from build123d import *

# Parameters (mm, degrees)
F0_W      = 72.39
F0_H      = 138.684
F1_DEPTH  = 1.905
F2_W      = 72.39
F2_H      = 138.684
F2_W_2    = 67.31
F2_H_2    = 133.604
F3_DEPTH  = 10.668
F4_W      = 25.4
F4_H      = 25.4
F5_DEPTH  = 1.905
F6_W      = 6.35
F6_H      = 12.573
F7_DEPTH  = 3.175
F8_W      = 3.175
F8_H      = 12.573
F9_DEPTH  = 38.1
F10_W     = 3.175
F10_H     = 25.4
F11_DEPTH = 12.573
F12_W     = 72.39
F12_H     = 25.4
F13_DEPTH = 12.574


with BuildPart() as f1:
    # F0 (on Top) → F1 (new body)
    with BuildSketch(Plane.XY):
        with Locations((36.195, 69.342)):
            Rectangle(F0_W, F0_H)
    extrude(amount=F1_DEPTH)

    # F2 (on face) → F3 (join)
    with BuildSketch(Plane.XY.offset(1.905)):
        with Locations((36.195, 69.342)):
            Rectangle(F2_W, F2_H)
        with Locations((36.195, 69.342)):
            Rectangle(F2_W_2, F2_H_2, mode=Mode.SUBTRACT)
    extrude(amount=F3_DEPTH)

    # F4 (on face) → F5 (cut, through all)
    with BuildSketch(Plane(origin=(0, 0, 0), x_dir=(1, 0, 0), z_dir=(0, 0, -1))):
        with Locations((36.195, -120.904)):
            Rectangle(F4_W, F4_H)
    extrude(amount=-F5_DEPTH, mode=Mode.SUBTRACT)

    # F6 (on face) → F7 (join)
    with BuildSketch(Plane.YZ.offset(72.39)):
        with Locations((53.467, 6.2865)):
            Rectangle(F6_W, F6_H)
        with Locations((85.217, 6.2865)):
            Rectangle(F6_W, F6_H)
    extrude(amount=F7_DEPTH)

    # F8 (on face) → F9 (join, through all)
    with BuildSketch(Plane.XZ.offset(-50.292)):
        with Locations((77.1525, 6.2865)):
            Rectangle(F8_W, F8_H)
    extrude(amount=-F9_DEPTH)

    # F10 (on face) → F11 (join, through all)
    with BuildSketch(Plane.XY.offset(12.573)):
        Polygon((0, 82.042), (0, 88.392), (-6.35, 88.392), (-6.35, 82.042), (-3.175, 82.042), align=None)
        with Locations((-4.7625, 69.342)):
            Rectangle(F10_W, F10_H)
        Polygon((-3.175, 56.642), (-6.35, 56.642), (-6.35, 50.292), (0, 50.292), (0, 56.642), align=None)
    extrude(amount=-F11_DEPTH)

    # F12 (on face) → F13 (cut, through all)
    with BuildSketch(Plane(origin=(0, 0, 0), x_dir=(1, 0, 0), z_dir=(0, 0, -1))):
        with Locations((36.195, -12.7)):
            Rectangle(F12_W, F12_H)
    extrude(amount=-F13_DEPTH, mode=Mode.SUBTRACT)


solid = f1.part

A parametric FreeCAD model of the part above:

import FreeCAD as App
import Part
import Sketcher
Q = App.Units.Quantity

doc = App.newDocument("Part")
params = doc.addObject("Spreadsheet::Sheet", "Params")
for row, (alias, value) in enumerate([
    ("sketch1_width", "2.85 in"),
    ("sketch1_height", "5.46 in"),
    ("pad1_length", "0.075 in"),
    ("sketch2_width", "2.85 in"),
    ("sketch2_width2", "2.65 in"),
    ("sketch2_height", "5.46 in"),
    ("sketch2_height2", "5.26 in"),
    ("pad2_length", "0.42 in"),
    ("sketch3_width", "1 in"),
    ("sketch4_width", "0.25 in"),
    ("sketch4_height", "0.495 in"),
    ("pad3_length", "0.125 in"),
    ("sketch5_width", "0.125 in"),
    ("sketch5_height", "0.495 in"),
    ("pad4_length", "1.5 in"),
    ("sketch6_height", "1 in"),
    ("sketch6_height2", "1.5 in"),
    ("sketch6_width", "0.125 in"),
    ("pad5_length", "0.495 in"),
    ("sketch7_height", "1 in"),
    ("sketch7_width", "2.85 in"),
], start=1):
    params.set(f"A{row}", alias)
    params.set(f"B{row}", "=" + value)
    params.setAlias(f"B{row}", alias)

body = doc.addObject("PartDesign::Body", "Body")

# Sketch on XY plane
sketch1 = doc.addObject("Sketcher::SketchObject", "Sketch")
body.addObject(sketch1)
sketch1.AttachmentSupport = (doc.XY_Plane, [""])
sketch1.MapMode = "FlatFace"
sketch1.addGeometry(Part.LineSegment(App.Vector(0, 139, 0), App.Vector(0, 0, 0)), False)
sketch1.addGeometry(Part.LineSegment(App.Vector(0, 0, 0), App.Vector(72, 0, 0)), False)
sketch1.addGeometry(Part.LineSegment(App.Vector(72, 0, 0), App.Vector(72, 139, 0)), False)
sketch1.addGeometry(Part.LineSegment(App.Vector(72, 139, 0), App.Vector(0, 139, 0)), False)
sketch1.addConstraint(Sketcher.Constraint("Coincident", 0, 2, 1, 1))
sketch1.addConstraint(Sketcher.Constraint("Coincident", 1, 2, 2, 1))
sketch1.addConstraint(Sketcher.Constraint("Coincident", 2, 2, 3, 1))
sketch1.addConstraint(Sketcher.Constraint("Coincident", 3, 2, 0, 1))
sketch1.addConstraint(Sketcher.Constraint("Vertical", 0))
sketch1.addConstraint(Sketcher.Constraint("Horizontal", 1))
sketch1.addConstraint(Sketcher.Constraint("Vertical", 2))
sketch1.addConstraint(Sketcher.Constraint("Horizontal", 3))
sketch1.addConstraint(Sketcher.Constraint("Coincident", 0, 2, -1, 1))
sketch1.addConstraint(Sketcher.Constraint("DistanceX", 1, 1, 1, 2, Q("2.85 in")))
sketch1.addConstraint(Sketcher.Constraint("DistanceY", 0, 2, 0, 1, Q("5.46 in")))
sketch1.setExpression("Constraints[9]", "Params.sketch1_width")
sketch1.setExpression("Constraints[10]", "Params.sketch1_height")
pad1 = doc.addObject("PartDesign::Pad", "Pad")
body.addObject(pad1)
pad1.Profile = sketch1
pad1.setExpression("Length", "Params.pad1_length")

# Sketch on XY plane
sketch2 = doc.addObject("Sketcher::SketchObject", "Sketch001")
body.addObject(sketch2)
sketch2.AttachmentSupport = (doc.XY_Plane, [""])
sketch2.MapMode = "FlatFace"
sketch2.AttachmentOffset = App.Placement(App.Vector(0, 0, 0.075 * 25.4), App.Rotation())
sketch2.addGeometry(Part.LineSegment(App.Vector(0, 139, 0), App.Vector(0, 0, 0)), False)
sketch2.addGeometry(Part.LineSegment(App.Vector(0, 0, 0), App.Vector(72, 0, 0)), False)
sketch2.addGeometry(Part.LineSegment(App.Vector(72, 0, 0), App.Vector(72, 139, 0)), False)
sketch2.addGeometry(Part.LineSegment(App.Vector(72, 139, 0), App.Vector(0, 139, 0)), False)
sketch2.addGeometry(Part.LineSegment(App.Vector(70, 3, 0), App.Vector(3, 3, 0)), False)
sketch2.addGeometry(Part.LineSegment(App.Vector(3, 3, 0), App.Vector(3, 136, 0)), False)
sketch2.addGeometry(Part.LineSegment(App.Vector(3, 136, 0), App.Vector(70, 136, 0)), False)
sketch2.addGeometry(Part.LineSegment(App.Vector(70, 136, 0), App.Vector(70, 3, 0)), False)
sketch2.addConstraint(Sketcher.Constraint("Coincident", 0, 2, 1, 1))
sketch2.addConstraint(Sketcher.Constraint("Coincident", 1, 2, 2, 1))
sketch2.addConstraint(Sketcher.Constraint("Coincident", 2, 2, 3, 1))
sketch2.addConstraint(Sketcher.Constraint("Coincident", 3, 2, 0, 1))
sketch2.addConstraint(Sketcher.Constraint("Coincident", 4, 2, 5, 1))
sketch2.addConstraint(Sketcher.Constraint("Coincident", 5, 2, 6, 1))
sketch2.addConstraint(Sketcher.Constraint("Coincident", 6, 2, 7, 1))
sketch2.addConstraint(Sketcher.Constraint("Coincident", 7, 2, 4, 1))
sketch2.addConstraint(Sketcher.Constraint("Vertical", 0))
sketch2.addConstraint(Sketcher.Constraint("Horizontal", 1))
sketch2.addConstraint(Sketcher.Constraint("Vertical", 2))
sketch2.addConstraint(Sketcher.Constraint("Horizontal", 3))
sketch2.addConstraint(Sketcher.Constraint("Horizontal", 4))
sketch2.addConstraint(Sketcher.Constraint("Vertical", 5))
sketch2.addConstraint(Sketcher.Constraint("Horizontal", 6))
sketch2.addConstraint(Sketcher.Constraint("Vertical", 7))
sketch2.addConstraint(Sketcher.Constraint("Coincident", 0, 2, -1, 1))
sketch2.addConstraint(Sketcher.Constraint("DistanceX", 1, 1, 1, 2, Q("2.85 in")))
sketch2.addConstraint(Sketcher.Constraint("DistanceX", 4, 2, 4, 1, Q("2.65 in")))
sketch2.addConstraint(Sketcher.Constraint("DistanceY", 0, 2, 0, 1, Q("5.46 in")))
sketch2.addConstraint(Sketcher.Constraint("DistanceY", 5, 1, 5, 2, Q("5.26 in")))
sketch2.addConstraint(Sketcher.Constraint("DistanceX", -1, 1, 4, 2, Q("0.1 in")))
sketch2.addConstraint(Sketcher.Constraint("DistanceY", -1, 1, 4, 2, Q("0.1 in")))
sketch2.setExpression("Constraints[17]", "Params.sketch2_width")
sketch2.setExpression("Constraints[18]", "Params.sketch2_width2")
sketch2.setExpression("Constraints[19]", "Params.sketch2_height")
sketch2.setExpression("Constraints[20]", "Params.sketch2_height2")
pad2 = doc.addObject("PartDesign::Pad", "Pad001")
body.addObject(pad2)
pad2.Profile = sketch2
pad2.setExpression("Length", "Params.pad2_length")

# Sketch on XY plane
sketch3 = doc.addObject("Sketcher::SketchObject", "Sketch002")
body.addObject(sketch3)
sketch3.AttachmentSupport = (doc.XY_Plane, [""])
sketch3.MapMode = "FlatFace"
sketch3.addGeometry(Part.LineSegment(App.Vector(23, 108, 0), App.Vector(23, 134, 0)), False)
sketch3.addGeometry(Part.LineSegment(App.Vector(23, 134, 0), App.Vector(49, 134, 0)), False)
sketch3.addGeometry(Part.LineSegment(App.Vector(49, 134, 0), App.Vector(49, 108, 0)), False)
sketch3.addGeometry(Part.LineSegment(App.Vector(49, 108, 0), App.Vector(23, 108, 0)), False)
sketch3.addConstraint(Sketcher.Constraint("Coincident", 0, 2, 1, 1))
sketch3.addConstraint(Sketcher.Constraint("Coincident", 1, 2, 2, 1))
sketch3.addConstraint(Sketcher.Constraint("Coincident", 2, 2, 3, 1))
sketch3.addConstraint(Sketcher.Constraint("Coincident", 3, 2, 0, 1))
sketch3.addConstraint(Sketcher.Constraint("Vertical", 0))
sketch3.addConstraint(Sketcher.Constraint("Horizontal", 1))
sketch3.addConstraint(Sketcher.Constraint("Vertical", 2))
sketch3.addConstraint(Sketcher.Constraint("Horizontal", 3))
sketch3.addConstraint(Sketcher.Constraint("Equal", 3, 0))
sketch3.addConstraint(Sketcher.Constraint("DistanceX", 1, 1, 1, 2, Q("1 in")))
sketch3.addConstraint(Sketcher.Constraint("DistanceY", -1, 1, 0, 2, Q("5.26 in")))
sketch3.addConstraint(Sketcher.Constraint("DistanceX", -1, 1, 0, 2, Q("0.925 in")))
sketch3.setExpression("Constraints[9]", "Params.sketch3_width")
pocket1 = doc.addObject("PartDesign::Pocket", "Pocket")
body.addObject(pocket1)
pocket1.Profile = sketch3
pocket1.Type = "ThroughAll"
pocket1.Reversed = True

# Sketch on YZ plane
sketch4 = doc.addObject("Sketcher::SketchObject", "Sketch003")
body.addObject(sketch4)
sketch4.AttachmentSupport = (doc.YZ_Plane, [""])
sketch4.MapMode = "FlatFace"
sketch4.AttachmentOffset = App.Placement(App.Vector(0, 0, 2.85 * 25.4), App.Rotation())
sketch4.addGeometry(Part.LineSegment(App.Vector(50, 13, 0), App.Vector(50, 0, 0)), False)
sketch4.addGeometry(Part.LineSegment(App.Vector(50, 0, 0), App.Vector(57, 0, 0)), False)
sketch4.addGeometry(Part.LineSegment(App.Vector(57, 0, 0), App.Vector(57, 13, 0)), False)
sketch4.addGeometry(Part.LineSegment(App.Vector(57, 13, 0), App.Vector(50, 13, 0)), False)
sketch4.addGeometry(Part.LineSegment(App.Vector(82, 13, 0), App.Vector(82, 0, 0)), False)
sketch4.addGeometry(Part.LineSegment(App.Vector(82, 0, 0), App.Vector(88, 0, 0)), False)
sketch4.addGeometry(Part.LineSegment(App.Vector(88, 0, 0), App.Vector(88, 13, 0)), False)
sketch4.addGeometry(Part.LineSegment(App.Vector(88, 13, 0), App.Vector(82, 13, 0)), False)
sketch4.addConstraint(Sketcher.Constraint("Coincident", 0, 2, 1, 1))
sketch4.addConstraint(Sketcher.Constraint("Coincident", 1, 2, 2, 1))
sketch4.addConstraint(Sketcher.Constraint("Coincident", 2, 2, 3, 1))
sketch4.addConstraint(Sketcher.Constraint("Coincident", 3, 2, 0, 1))
sketch4.addConstraint(Sketcher.Constraint("Coincident", 4, 2, 5, 1))
sketch4.addConstraint(Sketcher.Constraint("Coincident", 5, 2, 6, 1))
sketch4.addConstraint(Sketcher.Constraint("Coincident", 6, 2, 7, 1))
sketch4.addConstraint(Sketcher.Constraint("Coincident", 7, 2, 4, 1))
sketch4.addConstraint(Sketcher.Constraint("Vertical", 0))
sketch4.addConstraint(Sketcher.Constraint("Horizontal", 1))
sketch4.addConstraint(Sketcher.Constraint("Vertical", 2))
sketch4.addConstraint(Sketcher.Constraint("Horizontal", 3))
sketch4.addConstraint(Sketcher.Constraint("Vertical", 4))
sketch4.addConstraint(Sketcher.Constraint("Horizontal", 5))
sketch4.addConstraint(Sketcher.Constraint("Vertical", 6))
sketch4.addConstraint(Sketcher.Constraint("Horizontal", 7))
sketch4.addConstraint(Sketcher.Constraint("PointOnObject", 0, 2, -1))
sketch4.addConstraint(Sketcher.Constraint("PointOnObject", 4, 2, -1))
sketch4.addConstraint(Sketcher.Constraint("Horizontal", 3, 2, 6, 2))
sketch4.addConstraint(Sketcher.Constraint("Equal", 3, 5))
sketch4.addConstraint(Sketcher.Constraint("DistanceX", 1, 2, 4, 2, Q("1 in")))
sketch4.addConstraint(Sketcher.Constraint("DistanceX", 1, 1, 1, 2, Q("0.25 in")))
sketch4.addConstraint(Sketcher.Constraint("DistanceY", 0, 2, 0, 1, Q("0.495 in")))
sketch4.addConstraint(Sketcher.Constraint("DistanceX", -1, 1, 0, 2, Q("1.98 in")))
sketch4.setExpression("Constraints[21]", "Params.sketch4_width")
sketch4.setExpression("Constraints[22]", "Params.sketch4_height")
pad3 = doc.addObject("PartDesign::Pad", "Pad002")
body.addObject(pad3)
pad3.Profile = sketch4
pad3.setExpression("Length", "Params.pad3_length")

# Sketch on XZ plane
sketch5 = doc.addObject("Sketcher::SketchObject", "Sketch004")
body.addObject(sketch5)
sketch5.AttachmentSupport = (doc.XZ_Plane, [""])
sketch5.MapMode = "FlatFace"
sketch5.AttachmentOffset = App.Placement(App.Vector(0, 0, -1.98 * 25.4), App.Rotation())
sketch5.addGeometry(Part.LineSegment(App.Vector(75.6, 12.6, 0), App.Vector(75.6, 0, 0)), False)
sketch5.addGeometry(Part.LineSegment(App.Vector(75.6, 0, 0), App.Vector(78.7, 0, 0)), False)
sketch5.addGeometry(Part.LineSegment(App.Vector(78.7, 0, 0), App.Vector(78.7, 12.6, 0)), False)
sketch5.addGeometry(Part.LineSegment(App.Vector(78.7, 12.6, 0), App.Vector(75.6, 12.6, 0)), False)
sketch5.addConstraint(Sketcher.Constraint("Coincident", 0, 2, 1, 1))
sketch5.addConstraint(Sketcher.Constraint("Coincident", 1, 2, 2, 1))
sketch5.addConstraint(Sketcher.Constraint("Coincident", 2, 2, 3, 1))
sketch5.addConstraint(Sketcher.Constraint("Coincident", 3, 2, 0, 1))
sketch5.addConstraint(Sketcher.Constraint("Vertical", 0))
sketch5.addConstraint(Sketcher.Constraint("Horizontal", 1))
sketch5.addConstraint(Sketcher.Constraint("Vertical", 2))
sketch5.addConstraint(Sketcher.Constraint("Horizontal", 3))
sketch5.addConstraint(Sketcher.Constraint("PointOnObject", 0, 2, -1))
sketch5.addConstraint(Sketcher.Constraint("DistanceX", -1, 1, 1, 2, Q("3.1 in")))
sketch5.addConstraint(Sketcher.Constraint("DistanceX", 1, 1, 1, 2, Q("0.125 in")))
sketch5.addConstraint(Sketcher.Constraint("DistanceY", 0, 2, 0, 1, Q("0.495 in")))
sketch5.setExpression("Constraints[10]", "Params.sketch5_width")
sketch5.setExpression("Constraints[11]", "Params.sketch5_height")
pad4 = doc.addObject("PartDesign::Pad", "Pad003")
body.addObject(pad4)
pad4.Profile = sketch5
pad4.setExpression("Length", "Params.pad4_length")
pad4.Reversed = True

# Sketch on XY plane
sketch6 = doc.addObject("Sketcher::SketchObject", "Sketch005")
body.addObject(sketch6)
sketch6.AttachmentSupport = (doc.XY_Plane, [""])
sketch6.MapMode = "FlatFace"
sketch6.AttachmentOffset = App.Placement(App.Vector(0, 0, 0.495 * 25.4), App.Rotation())
sketch6.addGeometry(Part.LineSegment(App.Vector(0, 82, 0), App.Vector(0, 88.4, 0)), False)
sketch6.addGeometry(Part.LineSegment(App.Vector(0, 88.4, 0), App.Vector(-6.3, 88.4, 0)), False)
sketch6.addGeometry(Part.LineSegment(App.Vector(-6.3, 88.4, 0), App.Vector(-6.3, 50.3, 0)), False)
sketch6.addGeometry(Part.LineSegment(App.Vector(-6.3, 50.3, 0), App.Vector(0, 50.3, 0)), False)
sketch6.addGeometry(Part.LineSegment(App.Vector(0, 50.3, 0), App.Vector(0, 56.6, 0)), False)
sketch6.addGeometry(Part.LineSegment(App.Vector(0, 56.6, 0), App.Vector(-3.2, 56.6, 0)), False)
sketch6.addGeometry(Part.LineSegment(App.Vector(-3.2, 56.6, 0), App.Vector(-3.2, 82, 0)), False)
sketch6.addGeometry(Part.LineSegment(App.Vector(-3.2, 82, 0), App.Vector(0, 82, 0)), False)
sketch6.addConstraint(Sketcher.Constraint("Coincident", 0, 2, 1, 1))
sketch6.addConstraint(Sketcher.Constraint("Coincident", 1, 2, 2, 1))
sketch6.addConstraint(Sketcher.Constraint("Coincident", 2, 2, 3, 1))
sketch6.addConstraint(Sketcher.Constraint("Coincident", 3, 2, 4, 1))
sketch6.addConstraint(Sketcher.Constraint("Coincident", 4, 2, 5, 1))
sketch6.addConstraint(Sketcher.Constraint("Coincident", 5, 2, 6, 1))
sketch6.addConstraint(Sketcher.Constraint("Coincident", 6, 2, 7, 1))
sketch6.addConstraint(Sketcher.Constraint("Coincident", 7, 2, 0, 1))
sketch6.addConstraint(Sketcher.Constraint("Vertical", 0))
sketch6.addConstraint(Sketcher.Constraint("Horizontal", 1))
sketch6.addConstraint(Sketcher.Constraint("Vertical", 2))
sketch6.addConstraint(Sketcher.Constraint("Horizontal", 3))
sketch6.addConstraint(Sketcher.Constraint("Vertical", 4))
sketch6.addConstraint(Sketcher.Constraint("Horizontal", 5))
sketch6.addConstraint(Sketcher.Constraint("Vertical", 6))
sketch6.addConstraint(Sketcher.Constraint("Horizontal", 7))
sketch6.addConstraint(Sketcher.Constraint("PointOnObject", 0, 2, -2))
sketch6.addConstraint(Sketcher.Constraint("PointOnObject", 3, 2, -2))
sketch6.addConstraint(Sketcher.Constraint("Equal", 3, 0))
sketch6.addConstraint(Sketcher.Constraint("Equal", 0, 4))
sketch6.addConstraint(Sketcher.Constraint("DistanceY", 6, 1, 6, 2, Q("1 in")))
sketch6.addConstraint(Sketcher.Constraint("DistanceY", 2, 2, 2, 1, Q("1.5 in")))
sketch6.addConstraint(Sketcher.Constraint("DistanceX", 5, 2, 5, 1, Q("0.125 in")))
sketch6.addConstraint(Sketcher.Constraint("DistanceY", -1, 1, 0, 2, Q("3.48 in")))
sketch6.setExpression("Constraints[20]", "Params.sketch6_height")
sketch6.setExpression("Constraints[21]", "Params.sketch6_height2")
sketch6.setExpression("Constraints[22]", "Params.sketch6_width")
pad5 = doc.addObject("PartDesign::Pad", "Pad004")
body.addObject(pad5)
pad5.Profile = sketch6
pad5.setExpression("Length", "Params.pad5_length")
pad5.Reversed = True

# Sketch on XY plane
sketch7 = doc.addObject("Sketcher::SketchObject", "Sketch006")
body.addObject(sketch7)
sketch7.AttachmentSupport = (doc.XY_Plane, [""])
sketch7.MapMode = "FlatFace"
sketch7.addGeometry(Part.LineSegment(App.Vector(0, 0, 0), App.Vector(0, 25, 0)), False)
sketch7.addGeometry(Part.LineSegment(App.Vector(0, 25, 0), App.Vector(72, 25, 0)), False)
sketch7.addGeometry(Part.LineSegment(App.Vector(72, 25, 0), App.Vector(72, 0, 0)), False)
sketch7.addGeometry(Part.LineSegment(App.Vector(72, 0, 0), App.Vector(0, 0, 0)), False)
sketch7.addConstraint(Sketcher.Constraint("Coincident", 0, 2, 1, 1))
sketch7.addConstraint(Sketcher.Constraint("Coincident", 1, 2, 2, 1))
sketch7.addConstraint(Sketcher.Constraint("Coincident", 2, 2, 3, 1))
sketch7.addConstraint(Sketcher.Constraint("Coincident", 3, 2, 0, 1))
sketch7.addConstraint(Sketcher.Constraint("Vertical", 0))
sketch7.addConstraint(Sketcher.Constraint("Horizontal", 1))
sketch7.addConstraint(Sketcher.Constraint("Vertical", 2))
sketch7.addConstraint(Sketcher.Constraint("Horizontal", 3))
sketch7.addConstraint(Sketcher.Constraint("Coincident", 3, 2, -1, 1))
sketch7.addConstraint(Sketcher.Constraint("DistanceY", 0, 1, 0, 2, Q("1 in")))
sketch7.addConstraint(Sketcher.Constraint("DistanceX", 1, 1, 1, 2, Q("2.85 in")))
sketch7.setExpression("Constraints[9]", "Params.sketch7_height")
sketch7.setExpression("Constraints[10]", "Params.sketch7_width")
pocket2 = doc.addObject("PartDesign::Pocket", "Pocket001")
body.addObject(pocket2)
pocket2.Profile = sketch7
pocket2.Type = "ThroughAll"
pocket2.Reversed = True

doc.recompute()
